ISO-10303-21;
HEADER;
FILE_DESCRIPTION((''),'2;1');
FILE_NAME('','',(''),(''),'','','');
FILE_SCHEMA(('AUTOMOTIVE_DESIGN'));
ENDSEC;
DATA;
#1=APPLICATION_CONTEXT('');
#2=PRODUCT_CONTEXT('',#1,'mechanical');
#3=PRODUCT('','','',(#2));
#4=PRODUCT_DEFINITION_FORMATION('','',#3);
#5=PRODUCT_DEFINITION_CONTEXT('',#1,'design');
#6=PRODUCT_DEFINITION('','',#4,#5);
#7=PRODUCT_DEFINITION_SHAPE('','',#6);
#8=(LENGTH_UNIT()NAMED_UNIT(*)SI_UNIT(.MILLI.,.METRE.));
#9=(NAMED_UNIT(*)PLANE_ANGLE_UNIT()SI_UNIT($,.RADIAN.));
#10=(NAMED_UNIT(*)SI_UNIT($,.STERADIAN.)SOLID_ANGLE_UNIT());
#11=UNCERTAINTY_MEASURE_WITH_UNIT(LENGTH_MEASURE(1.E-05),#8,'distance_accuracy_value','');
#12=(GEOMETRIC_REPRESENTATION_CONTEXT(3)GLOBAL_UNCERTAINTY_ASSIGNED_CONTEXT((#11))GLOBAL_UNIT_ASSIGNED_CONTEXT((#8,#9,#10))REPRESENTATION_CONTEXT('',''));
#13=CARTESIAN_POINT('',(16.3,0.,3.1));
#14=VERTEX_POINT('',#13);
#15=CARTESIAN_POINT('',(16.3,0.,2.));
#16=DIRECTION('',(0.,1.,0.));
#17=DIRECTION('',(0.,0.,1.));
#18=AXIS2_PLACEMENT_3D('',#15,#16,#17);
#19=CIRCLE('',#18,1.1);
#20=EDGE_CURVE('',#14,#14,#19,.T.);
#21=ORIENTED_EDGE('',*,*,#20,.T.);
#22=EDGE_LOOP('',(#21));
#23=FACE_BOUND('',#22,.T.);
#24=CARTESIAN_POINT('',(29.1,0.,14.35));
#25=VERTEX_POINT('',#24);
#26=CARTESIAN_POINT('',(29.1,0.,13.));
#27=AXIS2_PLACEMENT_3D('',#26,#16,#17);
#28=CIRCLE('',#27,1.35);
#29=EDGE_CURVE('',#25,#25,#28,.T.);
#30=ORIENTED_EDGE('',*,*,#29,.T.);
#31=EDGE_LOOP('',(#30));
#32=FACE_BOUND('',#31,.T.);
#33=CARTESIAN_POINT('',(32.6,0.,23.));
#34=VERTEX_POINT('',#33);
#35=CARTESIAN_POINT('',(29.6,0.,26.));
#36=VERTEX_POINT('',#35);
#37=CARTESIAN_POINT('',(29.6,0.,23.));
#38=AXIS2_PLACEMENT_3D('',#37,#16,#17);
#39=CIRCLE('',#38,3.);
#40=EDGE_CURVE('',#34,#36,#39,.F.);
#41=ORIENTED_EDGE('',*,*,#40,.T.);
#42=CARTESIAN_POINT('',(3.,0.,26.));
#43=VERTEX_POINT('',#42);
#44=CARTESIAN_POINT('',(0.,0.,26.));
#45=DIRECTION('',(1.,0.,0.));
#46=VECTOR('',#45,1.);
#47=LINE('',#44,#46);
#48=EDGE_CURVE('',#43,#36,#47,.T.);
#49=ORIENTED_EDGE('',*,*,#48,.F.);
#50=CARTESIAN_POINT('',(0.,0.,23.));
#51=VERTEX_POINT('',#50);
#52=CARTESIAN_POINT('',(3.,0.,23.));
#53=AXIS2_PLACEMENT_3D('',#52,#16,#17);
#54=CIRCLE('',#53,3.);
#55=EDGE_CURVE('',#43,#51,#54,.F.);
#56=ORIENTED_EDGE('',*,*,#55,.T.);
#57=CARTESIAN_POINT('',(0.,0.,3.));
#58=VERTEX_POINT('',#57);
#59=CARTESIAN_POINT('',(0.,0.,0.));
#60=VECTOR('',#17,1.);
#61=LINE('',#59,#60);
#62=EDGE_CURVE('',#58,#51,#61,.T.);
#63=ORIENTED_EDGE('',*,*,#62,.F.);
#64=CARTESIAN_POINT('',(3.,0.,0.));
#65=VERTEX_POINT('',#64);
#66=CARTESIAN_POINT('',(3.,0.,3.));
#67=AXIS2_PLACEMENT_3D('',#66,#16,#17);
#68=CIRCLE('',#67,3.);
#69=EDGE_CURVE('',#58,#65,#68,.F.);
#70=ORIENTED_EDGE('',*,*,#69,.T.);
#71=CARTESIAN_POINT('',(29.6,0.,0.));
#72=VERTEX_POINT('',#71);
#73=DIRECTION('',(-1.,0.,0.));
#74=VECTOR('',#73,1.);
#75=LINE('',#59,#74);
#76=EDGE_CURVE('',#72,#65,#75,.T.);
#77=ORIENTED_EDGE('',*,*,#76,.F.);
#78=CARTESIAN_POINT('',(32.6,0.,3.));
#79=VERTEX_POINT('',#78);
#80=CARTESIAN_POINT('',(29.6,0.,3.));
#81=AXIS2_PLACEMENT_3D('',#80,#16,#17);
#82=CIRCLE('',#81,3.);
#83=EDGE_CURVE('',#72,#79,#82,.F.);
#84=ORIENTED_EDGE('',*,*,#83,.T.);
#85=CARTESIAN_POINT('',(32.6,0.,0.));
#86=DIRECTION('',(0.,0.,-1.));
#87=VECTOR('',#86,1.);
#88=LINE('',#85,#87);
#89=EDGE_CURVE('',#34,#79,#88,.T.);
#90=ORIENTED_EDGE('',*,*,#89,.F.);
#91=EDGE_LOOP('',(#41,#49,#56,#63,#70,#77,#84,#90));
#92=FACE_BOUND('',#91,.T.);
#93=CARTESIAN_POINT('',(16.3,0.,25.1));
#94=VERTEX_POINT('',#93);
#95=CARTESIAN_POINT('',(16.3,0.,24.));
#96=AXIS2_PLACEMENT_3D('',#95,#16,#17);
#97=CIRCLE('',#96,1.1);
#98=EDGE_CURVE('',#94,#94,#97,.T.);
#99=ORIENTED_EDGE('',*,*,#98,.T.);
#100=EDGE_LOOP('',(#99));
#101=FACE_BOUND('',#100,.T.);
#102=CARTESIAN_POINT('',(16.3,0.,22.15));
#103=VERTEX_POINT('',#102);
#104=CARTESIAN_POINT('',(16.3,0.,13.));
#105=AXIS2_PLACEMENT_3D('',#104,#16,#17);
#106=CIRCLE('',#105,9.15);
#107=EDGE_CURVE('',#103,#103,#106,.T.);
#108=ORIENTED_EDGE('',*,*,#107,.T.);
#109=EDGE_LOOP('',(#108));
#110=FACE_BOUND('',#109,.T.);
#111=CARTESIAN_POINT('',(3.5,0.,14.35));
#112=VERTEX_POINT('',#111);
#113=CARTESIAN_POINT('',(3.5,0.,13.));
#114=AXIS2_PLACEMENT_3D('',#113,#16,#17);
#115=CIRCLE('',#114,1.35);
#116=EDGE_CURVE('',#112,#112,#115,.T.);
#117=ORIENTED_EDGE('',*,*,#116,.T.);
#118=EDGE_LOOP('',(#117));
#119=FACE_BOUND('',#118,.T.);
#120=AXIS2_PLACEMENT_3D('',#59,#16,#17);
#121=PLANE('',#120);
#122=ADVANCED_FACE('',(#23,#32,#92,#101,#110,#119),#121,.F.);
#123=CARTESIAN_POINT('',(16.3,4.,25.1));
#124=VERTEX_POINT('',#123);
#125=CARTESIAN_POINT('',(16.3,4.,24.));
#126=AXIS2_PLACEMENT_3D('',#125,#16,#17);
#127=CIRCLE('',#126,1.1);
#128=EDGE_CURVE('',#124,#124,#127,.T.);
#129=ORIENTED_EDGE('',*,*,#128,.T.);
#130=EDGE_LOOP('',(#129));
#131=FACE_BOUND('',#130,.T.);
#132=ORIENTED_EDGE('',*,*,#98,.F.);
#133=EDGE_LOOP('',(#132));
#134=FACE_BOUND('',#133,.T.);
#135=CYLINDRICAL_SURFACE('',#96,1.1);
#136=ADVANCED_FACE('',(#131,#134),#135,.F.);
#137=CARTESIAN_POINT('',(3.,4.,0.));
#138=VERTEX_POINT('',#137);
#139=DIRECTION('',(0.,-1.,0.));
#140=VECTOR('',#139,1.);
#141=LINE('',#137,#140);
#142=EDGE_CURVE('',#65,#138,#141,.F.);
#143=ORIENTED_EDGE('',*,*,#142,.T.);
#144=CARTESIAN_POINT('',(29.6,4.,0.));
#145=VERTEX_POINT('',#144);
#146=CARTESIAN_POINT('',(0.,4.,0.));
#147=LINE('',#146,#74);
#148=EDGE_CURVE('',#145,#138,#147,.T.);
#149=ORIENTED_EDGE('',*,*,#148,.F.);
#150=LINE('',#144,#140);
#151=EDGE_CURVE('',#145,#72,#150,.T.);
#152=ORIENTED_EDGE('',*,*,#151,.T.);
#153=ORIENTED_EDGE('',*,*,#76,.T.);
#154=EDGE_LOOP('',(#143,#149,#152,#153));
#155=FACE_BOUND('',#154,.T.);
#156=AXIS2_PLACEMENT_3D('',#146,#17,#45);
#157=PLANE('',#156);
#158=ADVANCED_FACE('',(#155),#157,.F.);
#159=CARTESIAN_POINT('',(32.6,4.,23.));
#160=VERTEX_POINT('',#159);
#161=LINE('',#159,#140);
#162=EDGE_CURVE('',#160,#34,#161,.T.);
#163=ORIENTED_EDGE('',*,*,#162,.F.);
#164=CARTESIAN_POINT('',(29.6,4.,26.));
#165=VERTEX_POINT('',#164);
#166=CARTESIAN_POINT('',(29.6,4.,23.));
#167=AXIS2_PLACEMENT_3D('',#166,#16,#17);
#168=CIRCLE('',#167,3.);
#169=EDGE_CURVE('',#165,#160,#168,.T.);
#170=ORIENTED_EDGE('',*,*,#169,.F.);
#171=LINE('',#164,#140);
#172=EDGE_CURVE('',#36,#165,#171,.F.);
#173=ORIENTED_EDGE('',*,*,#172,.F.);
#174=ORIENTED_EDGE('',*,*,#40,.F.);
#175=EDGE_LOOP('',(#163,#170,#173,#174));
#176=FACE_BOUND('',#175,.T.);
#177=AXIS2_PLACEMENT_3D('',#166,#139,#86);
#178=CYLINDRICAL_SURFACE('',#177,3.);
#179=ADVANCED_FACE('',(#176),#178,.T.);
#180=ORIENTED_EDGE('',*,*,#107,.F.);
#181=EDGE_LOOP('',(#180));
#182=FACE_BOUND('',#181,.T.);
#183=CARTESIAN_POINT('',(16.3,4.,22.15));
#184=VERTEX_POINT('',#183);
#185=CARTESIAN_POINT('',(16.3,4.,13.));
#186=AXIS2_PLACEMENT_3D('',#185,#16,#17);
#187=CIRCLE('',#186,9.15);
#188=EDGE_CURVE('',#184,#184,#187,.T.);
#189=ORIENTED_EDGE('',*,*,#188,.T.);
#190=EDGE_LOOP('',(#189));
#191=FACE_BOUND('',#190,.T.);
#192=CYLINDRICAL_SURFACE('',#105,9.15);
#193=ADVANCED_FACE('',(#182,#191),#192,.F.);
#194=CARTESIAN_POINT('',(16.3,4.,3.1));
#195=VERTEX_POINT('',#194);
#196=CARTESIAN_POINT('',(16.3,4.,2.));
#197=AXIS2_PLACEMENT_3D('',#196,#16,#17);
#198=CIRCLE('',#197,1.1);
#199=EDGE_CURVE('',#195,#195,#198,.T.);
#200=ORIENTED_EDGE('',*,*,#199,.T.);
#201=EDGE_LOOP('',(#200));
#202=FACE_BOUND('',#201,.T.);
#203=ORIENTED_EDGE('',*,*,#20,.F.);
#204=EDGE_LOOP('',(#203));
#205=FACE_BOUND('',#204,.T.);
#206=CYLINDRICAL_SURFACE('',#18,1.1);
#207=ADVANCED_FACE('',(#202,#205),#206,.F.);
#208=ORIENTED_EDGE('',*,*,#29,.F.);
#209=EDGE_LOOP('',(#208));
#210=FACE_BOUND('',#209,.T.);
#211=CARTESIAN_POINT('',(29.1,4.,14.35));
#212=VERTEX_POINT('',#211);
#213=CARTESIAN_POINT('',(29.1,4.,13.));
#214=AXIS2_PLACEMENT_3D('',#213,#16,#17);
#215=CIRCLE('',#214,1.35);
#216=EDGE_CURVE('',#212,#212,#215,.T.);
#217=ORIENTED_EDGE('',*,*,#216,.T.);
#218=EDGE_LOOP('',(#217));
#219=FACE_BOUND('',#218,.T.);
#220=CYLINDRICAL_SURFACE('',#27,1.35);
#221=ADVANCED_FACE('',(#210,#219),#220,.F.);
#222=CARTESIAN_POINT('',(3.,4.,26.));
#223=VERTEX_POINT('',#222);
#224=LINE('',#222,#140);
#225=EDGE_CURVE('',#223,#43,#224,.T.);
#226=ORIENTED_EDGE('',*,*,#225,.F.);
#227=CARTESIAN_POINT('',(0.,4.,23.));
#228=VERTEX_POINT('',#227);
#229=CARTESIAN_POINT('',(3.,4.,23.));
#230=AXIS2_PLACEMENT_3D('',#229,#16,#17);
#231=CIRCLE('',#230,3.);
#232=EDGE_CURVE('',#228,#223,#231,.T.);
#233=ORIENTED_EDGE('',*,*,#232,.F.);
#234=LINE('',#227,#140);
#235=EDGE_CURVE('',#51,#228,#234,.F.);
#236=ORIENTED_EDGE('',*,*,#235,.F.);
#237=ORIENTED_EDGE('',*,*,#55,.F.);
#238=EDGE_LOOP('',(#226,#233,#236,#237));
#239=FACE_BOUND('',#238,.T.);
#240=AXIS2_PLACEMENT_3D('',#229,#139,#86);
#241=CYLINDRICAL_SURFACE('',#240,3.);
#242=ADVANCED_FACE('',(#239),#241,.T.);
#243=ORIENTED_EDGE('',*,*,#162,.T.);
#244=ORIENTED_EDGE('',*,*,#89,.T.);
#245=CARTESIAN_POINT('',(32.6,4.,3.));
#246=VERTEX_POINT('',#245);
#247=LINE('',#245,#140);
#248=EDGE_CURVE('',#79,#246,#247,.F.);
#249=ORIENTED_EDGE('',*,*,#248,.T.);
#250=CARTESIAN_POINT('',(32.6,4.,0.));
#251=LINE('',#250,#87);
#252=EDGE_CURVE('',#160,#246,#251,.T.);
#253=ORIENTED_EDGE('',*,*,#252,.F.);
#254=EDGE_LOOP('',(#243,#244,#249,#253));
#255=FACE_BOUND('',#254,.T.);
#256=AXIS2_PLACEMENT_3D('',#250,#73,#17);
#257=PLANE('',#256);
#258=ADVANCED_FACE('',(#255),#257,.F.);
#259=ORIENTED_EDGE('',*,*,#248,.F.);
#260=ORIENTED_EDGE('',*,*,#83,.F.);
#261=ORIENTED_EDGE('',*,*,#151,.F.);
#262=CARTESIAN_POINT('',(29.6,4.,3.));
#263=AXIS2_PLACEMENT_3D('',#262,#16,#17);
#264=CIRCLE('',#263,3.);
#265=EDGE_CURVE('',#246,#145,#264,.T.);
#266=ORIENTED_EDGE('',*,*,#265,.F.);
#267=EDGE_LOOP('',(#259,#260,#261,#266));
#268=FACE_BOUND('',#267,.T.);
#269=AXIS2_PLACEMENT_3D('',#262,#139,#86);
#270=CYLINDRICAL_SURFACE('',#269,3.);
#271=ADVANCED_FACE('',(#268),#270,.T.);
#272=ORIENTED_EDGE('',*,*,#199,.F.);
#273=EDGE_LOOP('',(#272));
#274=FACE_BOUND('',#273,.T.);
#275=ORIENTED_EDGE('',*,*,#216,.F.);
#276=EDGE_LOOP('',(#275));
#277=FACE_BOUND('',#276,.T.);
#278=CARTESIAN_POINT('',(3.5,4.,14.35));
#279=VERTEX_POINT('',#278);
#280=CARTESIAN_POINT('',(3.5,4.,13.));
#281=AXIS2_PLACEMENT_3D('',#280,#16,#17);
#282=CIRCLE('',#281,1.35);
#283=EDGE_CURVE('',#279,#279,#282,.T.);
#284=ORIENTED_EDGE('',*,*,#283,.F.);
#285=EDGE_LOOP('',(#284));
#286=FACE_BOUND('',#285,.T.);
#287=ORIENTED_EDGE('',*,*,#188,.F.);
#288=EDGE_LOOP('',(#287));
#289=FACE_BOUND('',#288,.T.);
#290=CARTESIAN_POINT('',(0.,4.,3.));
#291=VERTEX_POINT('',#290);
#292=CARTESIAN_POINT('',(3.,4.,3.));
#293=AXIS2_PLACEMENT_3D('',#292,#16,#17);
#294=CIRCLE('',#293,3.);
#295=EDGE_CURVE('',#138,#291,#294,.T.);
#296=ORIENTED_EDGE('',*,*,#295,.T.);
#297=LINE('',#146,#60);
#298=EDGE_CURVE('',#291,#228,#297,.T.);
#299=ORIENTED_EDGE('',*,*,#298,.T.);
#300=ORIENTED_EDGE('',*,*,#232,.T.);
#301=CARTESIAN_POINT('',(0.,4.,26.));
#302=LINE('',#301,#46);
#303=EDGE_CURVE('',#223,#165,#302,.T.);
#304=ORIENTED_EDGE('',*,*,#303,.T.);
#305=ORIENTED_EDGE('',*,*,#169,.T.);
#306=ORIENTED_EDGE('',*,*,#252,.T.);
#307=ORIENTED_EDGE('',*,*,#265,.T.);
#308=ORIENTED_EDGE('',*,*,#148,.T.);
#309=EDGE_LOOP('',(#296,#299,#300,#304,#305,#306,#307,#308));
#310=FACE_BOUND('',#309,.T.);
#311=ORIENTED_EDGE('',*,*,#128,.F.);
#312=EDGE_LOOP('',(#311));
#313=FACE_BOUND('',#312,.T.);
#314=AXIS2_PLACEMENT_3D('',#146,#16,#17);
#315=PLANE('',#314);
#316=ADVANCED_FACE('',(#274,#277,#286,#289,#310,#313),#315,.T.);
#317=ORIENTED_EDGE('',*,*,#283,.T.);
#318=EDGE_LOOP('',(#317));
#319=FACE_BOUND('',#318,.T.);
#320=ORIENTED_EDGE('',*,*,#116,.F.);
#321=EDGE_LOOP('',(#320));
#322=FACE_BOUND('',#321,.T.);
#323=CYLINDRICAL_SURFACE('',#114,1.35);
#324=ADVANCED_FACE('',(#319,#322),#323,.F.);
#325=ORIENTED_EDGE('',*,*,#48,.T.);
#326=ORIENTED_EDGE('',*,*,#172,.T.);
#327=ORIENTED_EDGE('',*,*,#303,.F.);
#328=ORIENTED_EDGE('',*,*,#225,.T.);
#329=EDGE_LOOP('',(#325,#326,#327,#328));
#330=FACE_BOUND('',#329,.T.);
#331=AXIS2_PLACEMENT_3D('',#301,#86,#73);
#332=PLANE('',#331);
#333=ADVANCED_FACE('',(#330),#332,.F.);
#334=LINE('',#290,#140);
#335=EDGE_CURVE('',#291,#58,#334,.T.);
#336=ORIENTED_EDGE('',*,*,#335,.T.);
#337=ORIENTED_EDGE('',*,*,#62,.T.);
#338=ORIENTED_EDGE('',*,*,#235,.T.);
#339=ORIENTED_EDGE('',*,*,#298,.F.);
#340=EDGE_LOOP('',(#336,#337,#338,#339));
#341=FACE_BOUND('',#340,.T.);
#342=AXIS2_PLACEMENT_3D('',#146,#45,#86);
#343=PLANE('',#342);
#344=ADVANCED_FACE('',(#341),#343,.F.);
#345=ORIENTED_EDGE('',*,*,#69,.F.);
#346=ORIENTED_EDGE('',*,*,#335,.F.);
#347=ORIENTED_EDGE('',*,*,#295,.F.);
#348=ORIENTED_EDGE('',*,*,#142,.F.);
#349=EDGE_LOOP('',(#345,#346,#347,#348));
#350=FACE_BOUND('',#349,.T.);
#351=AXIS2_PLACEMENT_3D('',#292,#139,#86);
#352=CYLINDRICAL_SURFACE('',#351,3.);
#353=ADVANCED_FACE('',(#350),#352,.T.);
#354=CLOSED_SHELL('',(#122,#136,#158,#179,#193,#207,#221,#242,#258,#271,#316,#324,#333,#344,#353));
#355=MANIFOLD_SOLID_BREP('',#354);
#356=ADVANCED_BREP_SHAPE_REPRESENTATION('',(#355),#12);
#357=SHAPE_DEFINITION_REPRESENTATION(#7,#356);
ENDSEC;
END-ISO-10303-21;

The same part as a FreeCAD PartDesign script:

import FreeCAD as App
import Part
import Sketcher

V = App.Vector


def edges_at(feature, points):
    """Names of the edges that pass closest to the given points."""
    edges = feature.Shape.Edges
    near = lambda p: min(range(len(edges)), key=lambda i: edges[i].distToShape(Part.Vertex(*p))[0])
    return sorted({f"Edge{near(p) + 1}" for p in points})

doc = App.newDocument("Part")
body = doc.addObject("PartDesign::Body", "Body")

# Sketch on XZ plane
sketch1 = doc.addObject("Sketcher::SketchObject", "Sketch")
body.addObject(sketch1)
sketch1.AttachmentSupport = (doc.XZ_Plane, [""])
sketch1.MapMode = "FlatFace"
sketch1.addGeometry([
    Part.LineSegment(V(0, 0, 0), V(0, 26, 0)),
    Part.LineSegment(V(0, 26, 0), V(33, 26, 0)),
    Part.LineSegment(V(33, 26, 0), V(33, 0, 0)),
    Part.LineSegment(V(33, 0, 0), V(0, 0, 0)),
], False)
sketch1.addConstraint([
    Sketcher.Constraint("Coincident", 0, 2, 1, 1),
    Sketcher.Constraint("Coincident", 1, 2, 2, 1),
    Sketcher.Constraint("Coincident", 2, 2, 3, 1),
    Sketcher.Constraint("Coincident", 3, 2, 0, 1),
    Sketcher.Constraint("Vertical", 0),
    Sketcher.Constraint("Horizontal", 1),
    Sketcher.Constraint("Vertical", 2),
    Sketcher.Constraint("Horizontal", 3),
    Sketcher.Constraint("Coincident", 3, 2, -1, 1),
    Sketcher.Constraint("DistanceY", 0, 1, 0, 2, 26.0),
    Sketcher.Constraint("DistanceX", 1, 1, 1, 2, 32.6),
])
pad1 = doc.addObject("PartDesign::Pad", "Pad")
body.addObject(pad1)
pad1.Profile = sketch1
pad1.Length = 4
pad1.Reversed = True

# Sketch on XZ plane
sketch2 = doc.addObject("Sketcher::SketchObject", "Sketch001")
body.addObject(sketch2)
sketch2.AttachmentSupport = (doc.XZ_Plane, [""])
sketch2.MapMode = "FlatFace"
sketch2.AttachmentOffset = App.Placement(V(0, 0, -4), App.Rotation())
sketch2.addGeometry([
    Part.Circle(V(16.3, 13, 0), V(0, 0, 1), 9.2),  # 0
    Part.Circle(V(3.5, 13, 0), V(0, 0, 1), 1.4),  # 1
    Part.Circle(V(29.1, 13, 0), V(0, 0, 1), 1.4),  # 2
    Part.Circle(V(16.3, 2, 0), V(0, 0, 1), 1.1),  # 3
    Part.Circle(V(16.3, 24, 0), V(0, 0, 1), 1.1),  # 4
], False)
sketch2.addConstraint([
    Sketcher.Constraint("Equal", 1, 2),
    Sketcher.Constraint("Equal", 3, 4),
    Sketcher.Constraint("Horizontal", 0, 3, 1, 3),
    Sketcher.Constraint("Horizontal", 1, 3, 2, 3),
    Sketcher.Constraint("Vertical", 0, 3, 3, 3),
    Sketcher.Constraint("Vertical", 3, 3, 4, 3),
    Sketcher.Constraint("Diameter", 0, 18.3),
    Sketcher.Constraint("Diameter", 1, 2.7),
    Sketcher.Constraint("Diameter", 3, 2.2),
    Sketcher.Constraint("DistanceY", -1, 1, 0, 3, 13.0),
    Sketcher.Constraint("DistanceY", -1, 1, 3, 3, 2.0),
    Sketcher.Constraint("DistanceY", -1, 1, 4, 3, 24.0),
    Sketcher.Constraint("DistanceX", -1, 1, 0, 3, 16.3),
    Sketcher.Constraint("DistanceX", -1, 1, 1, 3, 3.5),
    Sketcher.Constraint("DistanceX", -1, 1, 2, 3, 29.1),
])
pocket1 = doc.addObject("PartDesign::Pocket", "Pocket")
body.addObject(pocket1)
pocket1.Profile = sketch2
pocket1.Length = 4
pocket1.Reversed = True
doc.recompute()

fillet = doc.addObject("PartDesign::Fillet", "Fillet")
body.addObject(fillet)
fillet.Base = (pocket1, edges_at(pocket1, [
    (0, 2, 0),
    (32.6, 2, 0),
    (32.6, 2, 26),
    (0, 2, 26),
]))
fillet.Radius = 3

doc.recompute()
